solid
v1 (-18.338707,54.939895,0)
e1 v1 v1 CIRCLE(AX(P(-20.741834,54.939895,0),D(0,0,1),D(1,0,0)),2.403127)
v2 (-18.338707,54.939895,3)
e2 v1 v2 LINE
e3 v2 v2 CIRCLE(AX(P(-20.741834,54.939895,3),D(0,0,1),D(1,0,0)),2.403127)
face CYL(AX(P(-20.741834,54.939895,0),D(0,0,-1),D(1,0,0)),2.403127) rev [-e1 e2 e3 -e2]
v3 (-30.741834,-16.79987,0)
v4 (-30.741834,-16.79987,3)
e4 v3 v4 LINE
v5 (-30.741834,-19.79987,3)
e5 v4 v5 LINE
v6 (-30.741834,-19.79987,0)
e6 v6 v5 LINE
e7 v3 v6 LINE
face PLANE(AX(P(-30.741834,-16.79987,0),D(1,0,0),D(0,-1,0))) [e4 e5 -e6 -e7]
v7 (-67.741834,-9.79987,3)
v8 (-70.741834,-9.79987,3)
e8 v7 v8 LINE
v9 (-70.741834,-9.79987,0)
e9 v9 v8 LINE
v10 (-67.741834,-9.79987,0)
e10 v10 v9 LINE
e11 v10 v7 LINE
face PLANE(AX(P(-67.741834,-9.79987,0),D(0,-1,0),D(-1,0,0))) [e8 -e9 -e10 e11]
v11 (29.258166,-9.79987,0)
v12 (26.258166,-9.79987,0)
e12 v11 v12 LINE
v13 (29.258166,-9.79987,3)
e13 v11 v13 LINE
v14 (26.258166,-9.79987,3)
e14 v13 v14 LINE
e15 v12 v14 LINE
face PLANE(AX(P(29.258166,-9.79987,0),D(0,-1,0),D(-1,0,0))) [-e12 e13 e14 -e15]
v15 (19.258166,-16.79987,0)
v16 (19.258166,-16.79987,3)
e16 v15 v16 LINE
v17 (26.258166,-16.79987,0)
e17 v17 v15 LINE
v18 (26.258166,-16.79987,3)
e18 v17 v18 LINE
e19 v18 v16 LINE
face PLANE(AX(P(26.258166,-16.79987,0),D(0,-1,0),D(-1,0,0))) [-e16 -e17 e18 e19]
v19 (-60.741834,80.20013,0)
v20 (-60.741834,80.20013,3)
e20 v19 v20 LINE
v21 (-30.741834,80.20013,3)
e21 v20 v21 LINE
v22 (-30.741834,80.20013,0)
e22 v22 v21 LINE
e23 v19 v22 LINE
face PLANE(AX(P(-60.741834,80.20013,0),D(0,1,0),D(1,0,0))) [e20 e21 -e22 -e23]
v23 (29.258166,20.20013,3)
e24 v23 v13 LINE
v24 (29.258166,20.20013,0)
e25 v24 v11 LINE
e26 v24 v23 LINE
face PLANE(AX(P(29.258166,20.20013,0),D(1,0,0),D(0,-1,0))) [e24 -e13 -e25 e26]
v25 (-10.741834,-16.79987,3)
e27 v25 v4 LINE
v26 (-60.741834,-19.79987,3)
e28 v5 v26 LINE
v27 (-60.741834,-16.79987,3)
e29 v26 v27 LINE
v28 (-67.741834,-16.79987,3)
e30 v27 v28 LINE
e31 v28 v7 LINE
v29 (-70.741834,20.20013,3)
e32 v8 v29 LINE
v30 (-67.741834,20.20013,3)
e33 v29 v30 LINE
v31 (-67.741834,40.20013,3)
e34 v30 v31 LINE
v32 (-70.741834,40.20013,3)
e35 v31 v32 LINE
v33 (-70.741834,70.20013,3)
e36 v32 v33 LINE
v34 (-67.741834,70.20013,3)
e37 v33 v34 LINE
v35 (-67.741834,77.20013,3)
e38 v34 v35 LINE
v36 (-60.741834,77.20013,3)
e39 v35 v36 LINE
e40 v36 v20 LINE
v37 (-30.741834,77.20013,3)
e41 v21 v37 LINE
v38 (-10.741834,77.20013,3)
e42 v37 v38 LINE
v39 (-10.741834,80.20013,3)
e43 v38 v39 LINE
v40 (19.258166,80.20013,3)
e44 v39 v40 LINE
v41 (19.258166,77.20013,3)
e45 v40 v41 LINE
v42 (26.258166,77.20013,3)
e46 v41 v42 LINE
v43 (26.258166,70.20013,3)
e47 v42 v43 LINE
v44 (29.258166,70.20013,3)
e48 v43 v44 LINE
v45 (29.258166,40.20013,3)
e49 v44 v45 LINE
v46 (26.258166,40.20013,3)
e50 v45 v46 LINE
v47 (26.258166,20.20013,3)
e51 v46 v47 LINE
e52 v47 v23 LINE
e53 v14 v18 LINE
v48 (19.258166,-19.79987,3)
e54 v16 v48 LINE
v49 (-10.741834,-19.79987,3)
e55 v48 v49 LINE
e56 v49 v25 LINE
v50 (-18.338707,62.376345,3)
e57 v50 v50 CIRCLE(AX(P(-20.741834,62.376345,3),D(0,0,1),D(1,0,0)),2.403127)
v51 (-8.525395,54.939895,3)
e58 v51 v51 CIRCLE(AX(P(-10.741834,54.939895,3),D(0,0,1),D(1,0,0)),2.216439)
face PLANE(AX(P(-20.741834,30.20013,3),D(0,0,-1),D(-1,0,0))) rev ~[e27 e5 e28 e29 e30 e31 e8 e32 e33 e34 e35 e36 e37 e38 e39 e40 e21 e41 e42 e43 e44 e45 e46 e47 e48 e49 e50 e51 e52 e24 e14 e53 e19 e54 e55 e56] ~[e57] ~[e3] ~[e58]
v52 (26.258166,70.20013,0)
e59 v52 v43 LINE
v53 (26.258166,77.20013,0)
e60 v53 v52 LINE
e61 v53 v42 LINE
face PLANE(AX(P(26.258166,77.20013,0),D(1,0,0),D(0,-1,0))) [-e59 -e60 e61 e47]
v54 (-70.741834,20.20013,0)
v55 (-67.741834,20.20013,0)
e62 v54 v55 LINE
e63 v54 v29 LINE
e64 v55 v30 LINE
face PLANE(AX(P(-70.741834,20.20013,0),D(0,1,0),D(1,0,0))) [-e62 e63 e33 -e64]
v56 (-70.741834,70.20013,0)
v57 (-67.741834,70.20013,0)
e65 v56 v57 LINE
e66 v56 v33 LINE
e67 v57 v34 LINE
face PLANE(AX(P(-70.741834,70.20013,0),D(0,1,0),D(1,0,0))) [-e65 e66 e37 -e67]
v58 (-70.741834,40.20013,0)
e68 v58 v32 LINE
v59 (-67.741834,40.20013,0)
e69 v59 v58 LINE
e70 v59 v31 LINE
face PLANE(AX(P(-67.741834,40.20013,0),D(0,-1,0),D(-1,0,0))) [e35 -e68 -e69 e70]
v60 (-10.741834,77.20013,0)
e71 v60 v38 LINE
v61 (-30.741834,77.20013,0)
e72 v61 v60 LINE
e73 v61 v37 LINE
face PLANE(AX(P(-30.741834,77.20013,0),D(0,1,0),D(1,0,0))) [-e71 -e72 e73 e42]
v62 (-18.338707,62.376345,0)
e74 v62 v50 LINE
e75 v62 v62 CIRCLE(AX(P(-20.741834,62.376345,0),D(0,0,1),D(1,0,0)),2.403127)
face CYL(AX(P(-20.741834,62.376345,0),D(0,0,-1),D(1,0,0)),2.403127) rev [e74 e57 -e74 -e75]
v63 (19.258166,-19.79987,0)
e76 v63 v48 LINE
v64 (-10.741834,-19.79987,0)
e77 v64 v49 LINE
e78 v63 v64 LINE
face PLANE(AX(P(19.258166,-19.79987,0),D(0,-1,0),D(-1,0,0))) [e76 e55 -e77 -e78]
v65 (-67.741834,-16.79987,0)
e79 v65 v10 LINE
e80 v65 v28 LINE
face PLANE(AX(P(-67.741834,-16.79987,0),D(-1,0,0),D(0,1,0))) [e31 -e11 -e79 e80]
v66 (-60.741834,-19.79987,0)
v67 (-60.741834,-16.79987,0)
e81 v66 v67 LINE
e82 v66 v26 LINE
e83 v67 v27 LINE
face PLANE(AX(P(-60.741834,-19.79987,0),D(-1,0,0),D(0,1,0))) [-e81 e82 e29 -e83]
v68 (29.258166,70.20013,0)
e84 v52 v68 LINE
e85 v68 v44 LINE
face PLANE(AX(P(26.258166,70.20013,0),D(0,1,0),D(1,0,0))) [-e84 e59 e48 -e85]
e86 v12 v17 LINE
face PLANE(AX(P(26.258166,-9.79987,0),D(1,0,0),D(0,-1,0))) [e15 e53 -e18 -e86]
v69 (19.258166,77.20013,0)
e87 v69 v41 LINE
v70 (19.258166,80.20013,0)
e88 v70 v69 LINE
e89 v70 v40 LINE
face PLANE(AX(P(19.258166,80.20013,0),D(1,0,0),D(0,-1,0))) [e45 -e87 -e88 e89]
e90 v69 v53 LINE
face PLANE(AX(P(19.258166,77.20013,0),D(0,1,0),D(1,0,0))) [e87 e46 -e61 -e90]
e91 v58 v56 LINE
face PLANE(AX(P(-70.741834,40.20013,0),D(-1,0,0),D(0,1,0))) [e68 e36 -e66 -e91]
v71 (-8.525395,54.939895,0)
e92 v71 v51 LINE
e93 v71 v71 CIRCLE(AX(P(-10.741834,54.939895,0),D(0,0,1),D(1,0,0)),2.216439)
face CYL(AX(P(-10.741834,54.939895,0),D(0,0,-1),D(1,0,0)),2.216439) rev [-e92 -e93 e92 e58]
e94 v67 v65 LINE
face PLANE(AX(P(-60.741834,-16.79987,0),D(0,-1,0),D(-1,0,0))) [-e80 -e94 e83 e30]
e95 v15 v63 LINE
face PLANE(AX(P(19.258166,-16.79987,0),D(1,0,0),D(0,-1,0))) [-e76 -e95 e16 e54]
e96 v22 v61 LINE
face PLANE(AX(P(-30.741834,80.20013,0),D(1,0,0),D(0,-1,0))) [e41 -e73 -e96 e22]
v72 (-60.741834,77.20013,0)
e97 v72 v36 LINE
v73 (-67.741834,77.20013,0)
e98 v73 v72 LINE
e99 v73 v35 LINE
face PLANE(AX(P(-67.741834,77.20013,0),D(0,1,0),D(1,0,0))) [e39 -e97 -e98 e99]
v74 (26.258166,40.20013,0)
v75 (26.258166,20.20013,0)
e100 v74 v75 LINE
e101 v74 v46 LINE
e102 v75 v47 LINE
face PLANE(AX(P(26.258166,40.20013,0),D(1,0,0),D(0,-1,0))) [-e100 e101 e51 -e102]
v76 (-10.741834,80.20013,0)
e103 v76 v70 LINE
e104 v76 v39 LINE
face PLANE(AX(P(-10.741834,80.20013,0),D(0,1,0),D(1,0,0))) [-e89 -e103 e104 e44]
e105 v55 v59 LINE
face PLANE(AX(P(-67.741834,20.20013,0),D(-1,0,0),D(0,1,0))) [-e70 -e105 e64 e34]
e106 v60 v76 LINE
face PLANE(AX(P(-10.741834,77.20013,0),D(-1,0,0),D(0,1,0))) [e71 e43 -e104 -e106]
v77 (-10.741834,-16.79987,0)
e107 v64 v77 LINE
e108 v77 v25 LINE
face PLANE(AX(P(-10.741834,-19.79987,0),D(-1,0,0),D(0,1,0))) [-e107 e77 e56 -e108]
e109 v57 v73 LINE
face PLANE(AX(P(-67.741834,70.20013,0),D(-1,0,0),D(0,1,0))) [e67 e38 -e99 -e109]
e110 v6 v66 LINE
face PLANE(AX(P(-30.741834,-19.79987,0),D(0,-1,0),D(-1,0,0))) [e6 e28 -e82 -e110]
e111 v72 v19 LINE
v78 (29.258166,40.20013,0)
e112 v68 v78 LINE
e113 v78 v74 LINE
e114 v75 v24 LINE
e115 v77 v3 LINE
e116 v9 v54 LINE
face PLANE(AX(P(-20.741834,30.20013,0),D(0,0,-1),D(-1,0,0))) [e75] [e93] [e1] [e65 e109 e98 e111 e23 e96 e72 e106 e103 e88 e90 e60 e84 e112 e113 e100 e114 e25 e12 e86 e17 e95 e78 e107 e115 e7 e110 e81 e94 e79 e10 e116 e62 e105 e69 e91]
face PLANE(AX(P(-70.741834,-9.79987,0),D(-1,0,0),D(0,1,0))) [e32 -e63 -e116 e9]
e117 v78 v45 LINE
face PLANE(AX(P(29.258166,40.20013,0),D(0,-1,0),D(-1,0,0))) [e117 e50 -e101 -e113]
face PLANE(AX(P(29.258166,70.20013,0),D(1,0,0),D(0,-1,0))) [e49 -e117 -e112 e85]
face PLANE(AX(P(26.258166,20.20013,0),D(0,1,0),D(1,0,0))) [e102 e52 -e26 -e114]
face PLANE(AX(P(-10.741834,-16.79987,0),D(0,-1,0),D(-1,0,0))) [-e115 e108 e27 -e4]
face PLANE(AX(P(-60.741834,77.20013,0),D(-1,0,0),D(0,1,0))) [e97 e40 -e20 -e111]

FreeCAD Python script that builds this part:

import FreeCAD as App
import Part
import Sketcher
Q = App.Units.Quantity


def add_polygon(sketch, points):
    """Adds a closed chain of lines whose ends are joined by coincident constraints."""
    first, n = sketch.GeometryCount, len(points)
    for a, b in zip(points, points[1:] + points[:1]):
        sketch.addGeometry(Part.LineSegment(App.Vector(*a, 0), App.Vector(*b, 0)), False)
    for i in range(n):
        sketch.addConstraint(Sketcher.Constraint("Coincident", first + i, 2, first + (i + 1) % n, 1))

doc = App.newDocument("Part")
body = doc.addObject("PartDesign::Body", "Body")

# Sketch on XY plane
sketch1 = doc.addObject("Sketcher::SketchObject", "Sketch")
body.addObject(sketch1)
sketch1.AttachmentSupport = (doc.XY_Plane, [""])
sketch1.MapMode = "FlatFace"
add_polygon(sketch1, [(19.3, 80.2), (-10.7, 80.2), (-10.7, 77.2), (-30.7, 77.2), (-30.7, 80.2), (-60.7, 80.2), (-60.7, 77.2), (-67.7, 77.2), (-67.7, 70.2), (-70.7, 70.2), (-70.7, 40.2), (-67.7, 40.2), (-67.7, 20.2), (-70.7, 20.2), (-70.7, -9.8), (-67.7, -9.8), (-67.7, -16.8), (-60.7, -16.8), (-60.7, -19.8), (-30.7, -19.8), (-30.7, -16.8), (-10.7, -16.8), (-10.7, -19.8), (19.3, -19.8), (19.3, -16.8), (26.3, -16.8), (26.3, -9.8), (29.3, -9.8), (29.3, 20.2), (26.3, 20.2), (26.3, 40.2), (29.3, 40.2), (29.3, 70.2), (26.3, 70.2), (26.3, 77.2), (19.3, 77.2)])  # lines 0-35
sketch1.addGeometry(Part.Circle(App.Vector(-10.7, 54.9, 0), App.Vector(0, 0, 1), 2.2), False)  # 36
sketch1.addGeometry(Part.Circle(App.Vector(-20.7, 54.9, 0), App.Vector(0, 0, 1), 2.4), False)  # 37
sketch1.addGeometry(Part.Circle(App.Vector(-20.7, 62.4, 0), App.Vector(0, 0, 1), 2.4), False)  # 38
sketch1.addConstraint([
    Sketcher.Constraint("Horizontal", 0),
    Sketcher.Constraint("Vertical", 1),
    Sketcher.Constraint("Horizontal", 2),
    Sketcher.Constraint("Vertical", 3),
    Sketcher.Constraint("Horizontal", 4),
    Sketcher.Constraint("Vertical", 5),
    Sketcher.Constraint("Horizontal", 6),
    Sketcher.Constraint("Vertical", 7),
    Sketcher.Constraint("Horizontal", 8),
    Sketcher.Constraint("Vertical", 9),
    Sketcher.Constraint("Horizontal", 10),
    Sketcher.Constraint("Vertical", 11),
    Sketcher.Constraint("Horizontal", 12),
    Sketcher.Constraint("Vertical", 13),
    Sketcher.Constraint("Horizontal", 14),
    Sketcher.Constraint("Vertical", 15),
    Sketcher.Constraint("Horizontal", 16),
    Sketcher.Constraint("Vertical", 17),
    Sketcher.Constraint("Horizontal", 18),
    Sketcher.Constraint("Vertical", 19),
    Sketcher.Constraint("Horizontal", 20),
    Sketcher.Constraint("Vertical", 21),
    Sketcher.Constraint("Horizontal", 22),
    Sketcher.Constraint("Vertical", 23),
    Sketcher.Constraint("Horizontal", 24),
    Sketcher.Constraint("Vertical", 25),
    Sketcher.Constraint("Horizontal", 26),
    Sketcher.Constraint("Vertical", 27),
    Sketcher.Constraint("Horizontal", 28),
    Sketcher.Constraint("Vertical", 29),
    Sketcher.Constraint("Horizontal", 30),
    Sketcher.Constraint("Vertical", 31),
    Sketcher.Constraint("Horizontal", 32),
    Sketcher.Constraint("Vertical", 33),
    Sketcher.Constraint("Horizontal", 34),
    Sketcher.Constraint("Vertical", 35),
    Sketcher.Constraint("Equal", 37, 38),
    Sketcher.Constraint("Horizontal", 36, 3, 37, 3),
    Sketcher.Constraint("Horizontal", 0, 2, 3, 2),
    Sketcher.Constraint("Horizontal", 2, 2, 5, 2),
    Sketcher.Constraint("Horizontal", 16, 2, 19, 2),
    Sketcher.Constraint("Horizontal", 18, 2, 21, 2),
    Sketcher.Constraint("Horizontal", 20, 2, 23, 2),
    Sketcher.Constraint("Horizontal", 14, 2, 25, 2),
    Sketcher.Constraint("Horizontal", 12, 2, 27, 2),
    Sketcher.Constraint("Horizontal", 10, 2, 29, 2),
    Sketcher.Constraint("Horizontal", 8, 2, 31, 2),
    Sketcher.Constraint("Horizontal", 6, 2, 33, 2),
    Sketcher.Constraint("Vertical", 37, 3, 38, 3),
    Sketcher.Constraint("Vertical", 36, 3, 0, 2),
    Sketcher.Constraint("Vertical", 7, 2, 10, 2),
    Sketcher.Constraint("Vertical", 9, 2, 12, 2),
    Sketcher.Constraint("Vertical", 11, 2, 14, 2),
    Sketcher.Constraint("Vertical", 5, 2, 16, 2),
    Sketcher.Constraint("Vertical", 3, 2, 18, 2),
    Sketcher.Constraint("Vertical", 1, 2, 20, 2),
    Sketcher.Constraint("Vertical", 25, 2, 28, 2),
    Sketcher.Constraint("Vertical", 27, 2, 30, 2),
    Sketcher.Constraint("Vertical", 29, 2, 32, 2),
    Sketcher.Constraint("Vertical", 23, 2, 34, 2),
    Sketcher.Constraint("Equal", 0, 4),
    Sketcher.Constraint("Equal", 16, 24),
    Sketcher.Constraint("Equal", 14, 26),
    Sketcher.Constraint("Equal", 32, 1),
    Sketcher.Constraint("Equal", 34, 7),
    Sketcher.Constraint("Equal", 22, 9),
    Sketcher.Constraint("Equal", 20, 11),
    Sketcher.Constraint("Equal", 9, 13),
    Sketcher.Constraint("Equal", 7, 15),
    Sketcher.Constraint("Equal", 5, 17),
    Sketcher.Constraint("DistanceX", 0, 2, 0, 1, Q("30 mm")),
    Sketcher.Constraint("DistanceX", 2, 2, 2, 1, Q("20 mm")),
    Sketcher.Constraint("DistanceX", 6, 2, 6, 1, Q("7 mm")),
    Sketcher.Constraint("DistanceX", 8, 2, 8, 1, Q("3 mm")),
    Sketcher.Constraint("DistanceX", 37, 3, 36, 3, Q("10 mm")),
    Sketcher.Constraint("Diameter", 36, Q("4.432878 mm")),
    Sketcher.Constraint("Diameter", 37, Q("4.806253 mm")),
    Sketcher.Constraint("DistanceY", -1, 1, 0, 2, Q("80.20013 mm")),
    Sketcher.Constraint("DistanceY", 37, 3, 38, 3, Q("7.436449 mm")),
    Sketcher.Constraint("DistanceX", 36, 3, -1, 1, Q("10.741834 mm")),
    Sketcher.Constraint("DistanceY", -1, 1, 36, 3, Q("54.939895 mm")),
])
pad1 = doc.addObject("PartDesign::Pad", "Pad")
body.addObject(pad1)
pad1.Profile = sketch1
pad1.Length = 3

doc.recompute()
